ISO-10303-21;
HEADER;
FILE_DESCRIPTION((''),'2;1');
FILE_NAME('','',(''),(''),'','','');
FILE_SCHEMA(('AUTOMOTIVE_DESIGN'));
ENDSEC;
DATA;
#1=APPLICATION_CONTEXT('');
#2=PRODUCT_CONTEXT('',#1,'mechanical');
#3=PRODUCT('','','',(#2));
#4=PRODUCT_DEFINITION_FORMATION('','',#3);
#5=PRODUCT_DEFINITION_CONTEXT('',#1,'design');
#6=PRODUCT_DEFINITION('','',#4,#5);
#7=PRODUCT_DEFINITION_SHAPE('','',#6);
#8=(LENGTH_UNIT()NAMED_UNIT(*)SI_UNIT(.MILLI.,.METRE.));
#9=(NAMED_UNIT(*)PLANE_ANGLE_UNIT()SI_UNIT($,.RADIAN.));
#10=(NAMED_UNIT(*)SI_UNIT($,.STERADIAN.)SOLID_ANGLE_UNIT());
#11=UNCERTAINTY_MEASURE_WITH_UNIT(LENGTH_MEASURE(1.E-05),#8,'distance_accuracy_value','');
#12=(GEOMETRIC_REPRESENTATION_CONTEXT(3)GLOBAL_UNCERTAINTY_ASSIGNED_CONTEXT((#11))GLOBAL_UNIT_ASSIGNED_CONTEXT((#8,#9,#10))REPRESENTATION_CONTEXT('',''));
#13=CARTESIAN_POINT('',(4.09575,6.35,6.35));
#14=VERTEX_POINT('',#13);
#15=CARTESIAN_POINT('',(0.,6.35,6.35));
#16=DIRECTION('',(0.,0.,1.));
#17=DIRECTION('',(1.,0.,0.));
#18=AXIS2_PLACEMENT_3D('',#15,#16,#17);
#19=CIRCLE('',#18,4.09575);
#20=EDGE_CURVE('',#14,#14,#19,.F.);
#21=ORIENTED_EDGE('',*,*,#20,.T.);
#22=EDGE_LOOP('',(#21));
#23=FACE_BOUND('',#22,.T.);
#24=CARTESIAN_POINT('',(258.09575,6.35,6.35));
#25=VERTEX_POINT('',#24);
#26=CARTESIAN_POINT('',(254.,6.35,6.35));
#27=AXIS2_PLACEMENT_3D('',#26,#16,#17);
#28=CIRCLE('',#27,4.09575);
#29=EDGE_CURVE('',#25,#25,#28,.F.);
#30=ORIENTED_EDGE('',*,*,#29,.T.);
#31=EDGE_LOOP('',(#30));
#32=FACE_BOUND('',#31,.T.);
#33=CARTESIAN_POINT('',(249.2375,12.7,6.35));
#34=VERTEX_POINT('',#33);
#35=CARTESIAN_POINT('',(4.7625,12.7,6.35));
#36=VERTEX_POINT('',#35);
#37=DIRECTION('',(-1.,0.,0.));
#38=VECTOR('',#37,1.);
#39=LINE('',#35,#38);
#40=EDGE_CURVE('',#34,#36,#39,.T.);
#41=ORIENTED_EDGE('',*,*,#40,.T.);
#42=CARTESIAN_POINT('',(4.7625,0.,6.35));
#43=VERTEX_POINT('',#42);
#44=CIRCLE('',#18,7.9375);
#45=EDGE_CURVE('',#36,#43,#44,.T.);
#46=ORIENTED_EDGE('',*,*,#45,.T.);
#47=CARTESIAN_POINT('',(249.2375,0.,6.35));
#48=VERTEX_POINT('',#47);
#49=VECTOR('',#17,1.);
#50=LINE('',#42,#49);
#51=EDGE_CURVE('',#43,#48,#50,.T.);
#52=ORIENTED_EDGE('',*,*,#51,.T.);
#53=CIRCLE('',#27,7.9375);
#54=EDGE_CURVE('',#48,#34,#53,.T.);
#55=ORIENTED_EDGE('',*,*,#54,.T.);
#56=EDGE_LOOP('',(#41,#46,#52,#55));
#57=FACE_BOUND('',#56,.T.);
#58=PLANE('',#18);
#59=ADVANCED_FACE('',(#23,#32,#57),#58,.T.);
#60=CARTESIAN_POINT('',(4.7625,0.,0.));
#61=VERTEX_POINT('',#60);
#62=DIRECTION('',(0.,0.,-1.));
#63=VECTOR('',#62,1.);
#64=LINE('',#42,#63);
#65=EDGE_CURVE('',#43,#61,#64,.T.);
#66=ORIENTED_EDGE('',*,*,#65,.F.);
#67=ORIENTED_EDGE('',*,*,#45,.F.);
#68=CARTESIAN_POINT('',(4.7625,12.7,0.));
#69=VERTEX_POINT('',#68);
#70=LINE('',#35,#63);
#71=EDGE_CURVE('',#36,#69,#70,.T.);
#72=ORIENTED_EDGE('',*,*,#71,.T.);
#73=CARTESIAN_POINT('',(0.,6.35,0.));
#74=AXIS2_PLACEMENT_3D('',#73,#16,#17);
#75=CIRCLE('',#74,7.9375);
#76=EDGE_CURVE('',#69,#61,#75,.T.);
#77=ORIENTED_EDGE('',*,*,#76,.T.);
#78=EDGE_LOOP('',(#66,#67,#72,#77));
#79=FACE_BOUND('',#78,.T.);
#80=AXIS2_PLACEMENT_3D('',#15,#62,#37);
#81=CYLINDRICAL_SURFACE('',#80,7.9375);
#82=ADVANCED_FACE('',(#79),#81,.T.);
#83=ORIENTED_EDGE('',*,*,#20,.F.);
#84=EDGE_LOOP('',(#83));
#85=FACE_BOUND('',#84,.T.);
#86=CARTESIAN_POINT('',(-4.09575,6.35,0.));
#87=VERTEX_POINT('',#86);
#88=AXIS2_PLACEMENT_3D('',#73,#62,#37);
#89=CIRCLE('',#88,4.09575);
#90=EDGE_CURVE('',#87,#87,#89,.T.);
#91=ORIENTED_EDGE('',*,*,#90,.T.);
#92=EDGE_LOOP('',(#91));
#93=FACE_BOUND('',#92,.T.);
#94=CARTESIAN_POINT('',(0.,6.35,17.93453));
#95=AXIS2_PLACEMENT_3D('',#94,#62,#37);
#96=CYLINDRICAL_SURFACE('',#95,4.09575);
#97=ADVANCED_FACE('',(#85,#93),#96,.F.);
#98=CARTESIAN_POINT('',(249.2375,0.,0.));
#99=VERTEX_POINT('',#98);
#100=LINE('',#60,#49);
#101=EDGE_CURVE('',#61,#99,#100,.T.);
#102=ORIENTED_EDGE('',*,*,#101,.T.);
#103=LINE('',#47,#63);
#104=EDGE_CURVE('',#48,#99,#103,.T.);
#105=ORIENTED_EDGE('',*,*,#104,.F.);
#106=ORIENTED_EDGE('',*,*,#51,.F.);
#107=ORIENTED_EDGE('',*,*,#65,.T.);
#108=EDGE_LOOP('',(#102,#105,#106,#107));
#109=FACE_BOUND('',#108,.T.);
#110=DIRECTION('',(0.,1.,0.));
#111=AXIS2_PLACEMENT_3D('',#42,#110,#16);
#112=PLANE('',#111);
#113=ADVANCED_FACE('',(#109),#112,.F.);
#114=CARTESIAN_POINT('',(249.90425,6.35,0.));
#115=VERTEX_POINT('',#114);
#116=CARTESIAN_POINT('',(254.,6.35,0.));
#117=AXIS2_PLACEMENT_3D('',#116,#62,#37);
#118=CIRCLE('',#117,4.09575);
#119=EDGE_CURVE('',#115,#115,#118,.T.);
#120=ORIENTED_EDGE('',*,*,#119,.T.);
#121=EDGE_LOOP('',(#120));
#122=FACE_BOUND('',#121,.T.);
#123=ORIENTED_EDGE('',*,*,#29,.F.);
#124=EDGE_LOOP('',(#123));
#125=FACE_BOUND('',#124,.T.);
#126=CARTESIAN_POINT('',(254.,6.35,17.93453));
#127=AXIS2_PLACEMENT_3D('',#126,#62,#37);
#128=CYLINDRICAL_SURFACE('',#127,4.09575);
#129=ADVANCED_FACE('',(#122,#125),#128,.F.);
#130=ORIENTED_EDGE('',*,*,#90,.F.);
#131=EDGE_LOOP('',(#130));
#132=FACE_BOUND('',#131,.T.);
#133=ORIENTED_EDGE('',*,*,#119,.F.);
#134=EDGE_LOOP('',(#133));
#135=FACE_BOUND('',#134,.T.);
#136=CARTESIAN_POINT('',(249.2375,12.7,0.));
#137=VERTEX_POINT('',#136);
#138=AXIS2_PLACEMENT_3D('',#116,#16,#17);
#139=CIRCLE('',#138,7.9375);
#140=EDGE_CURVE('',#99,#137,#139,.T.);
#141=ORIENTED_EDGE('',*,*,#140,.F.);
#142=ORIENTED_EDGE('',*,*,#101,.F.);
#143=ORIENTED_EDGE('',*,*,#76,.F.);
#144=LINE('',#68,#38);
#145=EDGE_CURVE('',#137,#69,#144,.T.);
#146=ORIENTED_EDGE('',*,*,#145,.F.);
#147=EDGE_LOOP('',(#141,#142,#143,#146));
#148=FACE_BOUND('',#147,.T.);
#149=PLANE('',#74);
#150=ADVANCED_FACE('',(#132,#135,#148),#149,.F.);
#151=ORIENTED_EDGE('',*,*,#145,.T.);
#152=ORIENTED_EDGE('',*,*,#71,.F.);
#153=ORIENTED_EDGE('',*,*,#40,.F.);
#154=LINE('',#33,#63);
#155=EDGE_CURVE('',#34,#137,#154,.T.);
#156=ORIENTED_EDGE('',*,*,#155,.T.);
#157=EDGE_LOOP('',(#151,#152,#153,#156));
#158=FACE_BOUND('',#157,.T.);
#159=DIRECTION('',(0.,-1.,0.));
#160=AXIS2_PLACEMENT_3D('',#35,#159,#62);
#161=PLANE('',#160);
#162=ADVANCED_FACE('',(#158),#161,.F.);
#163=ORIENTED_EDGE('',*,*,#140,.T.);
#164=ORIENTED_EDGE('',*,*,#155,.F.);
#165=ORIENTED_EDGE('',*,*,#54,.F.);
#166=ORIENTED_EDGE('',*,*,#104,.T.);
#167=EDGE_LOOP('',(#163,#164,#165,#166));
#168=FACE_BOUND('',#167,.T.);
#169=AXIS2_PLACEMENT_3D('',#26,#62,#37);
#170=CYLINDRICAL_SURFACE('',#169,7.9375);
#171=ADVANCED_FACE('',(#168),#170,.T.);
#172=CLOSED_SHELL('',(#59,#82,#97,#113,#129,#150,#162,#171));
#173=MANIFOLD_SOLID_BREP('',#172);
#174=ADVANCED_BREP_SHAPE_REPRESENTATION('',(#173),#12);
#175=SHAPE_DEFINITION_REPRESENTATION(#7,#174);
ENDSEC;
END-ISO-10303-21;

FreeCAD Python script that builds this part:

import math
import FreeCAD as App
import Part
import Sketcher
Q = App.Units.Quantity

doc = App.newDocument("Part")
body = doc.addObject("PartDesign::Body", "Body")

# Sketch on XY plane
sketch1 = body.newObject("Sketcher::SketchObject", "Sketch")
sketch1.AttachmentSupport = (doc.getObject("XY_Plane"), [""])
sketch1.MapMode = "FlatFace"
sketch1.addGeometry([
    Part.LineSegment(App.Vector(5, 0, 0), App.Vector(249, 0, 0)),
    Part.ArcOfCircle(Part.Circle(App.Vector(254, 6, 0), App.Vector(0, 0, 1), 8), math.radians(-127), math.radians(127)),
    Part.LineSegment(App.Vector(249, 13, 0), App.Vector(5, 13, 0)),
    Part.ArcOfCircle(Part.Circle(App.Vector(0, 6, 0), App.Vector(0, 0, 1), 8), math.radians(53), math.radians(307)),
], False)
sketch1.addConstraint([
    Sketcher.Constraint("Coincident", 0, 2, 1, 1),
    Sketcher.Constraint("Coincident", 1, 2, 2, 1),
    Sketcher.Constraint("Coincident", 2, 2, 3, 1),
    Sketcher.Constraint("Coincident", 3, 2, 0, 1),
    Sketcher.Constraint("Horizontal", 0),
    Sketcher.Constraint("Horizontal", 2),
    Sketcher.Constraint("Equal", 1, 3),
    Sketcher.Constraint("PointOnObject", 3, 3, -2),
    Sketcher.Constraint("PointOnObject", 0, 2, -1),
    Sketcher.Constraint("Horizontal", 1, 3, 3, 3),
    Sketcher.Constraint("Vertical", 0, 2, 1, 2),
    Sketcher.Constraint("DistanceX", -1, 1, 1, 3, Q("10 in")),
    Sketcher.Constraint("Radius", 1, Q("0.3125 in")),
    Sketcher.Constraint("DistanceY", -1, 1, 1, 2, Q("0.5 in")),
])
pad1 = body.newObject("PartDesign::Pad", "Pad")
pad1.Profile = sketch1
pad1.Length = Q("0.25 in")

# Sketch on XY plane
sketch2 = body.newObject("Sketcher::SketchObject", "Sketch001")
sketch2.AttachmentSupport = (doc.getObject("XY_Plane"), [""])
sketch2.MapMode = "FlatFace"
sketch2.addGeometry([
    Part.Circle(App.Vector(254, 6.3, 0), App.Vector(0, 0, 1), 4.1),
    Part.Circle(App.Vector(0, 6.3, 0), App.Vector(0, 0, 1), 4.1),
], False)
sketch2.addConstraint([
    Sketcher.Constraint("Equal", 0, 1),
    Sketcher.Constraint("PointOnObject", 1, 3, -2),
    Sketcher.Constraint("Horizontal", 0, 3, 1, 3),
    Sketcher.Constraint("DistanceX", -1, 1, 0, 3, Q("10 in")),
    Sketcher.Constraint("Diameter", 0, Q("0.3225 in")),
    Sketcher.Constraint("DistanceY", -1, 1, 0, 3, Q("0.25 in")),
])
pocket1 = body.newObject("PartDesign::Pocket", "Pocket")
pocket1.Profile = sketch2
pocket1.Length = Q("0.25 in")
pocket1.Reversed = True

doc.recompute()
